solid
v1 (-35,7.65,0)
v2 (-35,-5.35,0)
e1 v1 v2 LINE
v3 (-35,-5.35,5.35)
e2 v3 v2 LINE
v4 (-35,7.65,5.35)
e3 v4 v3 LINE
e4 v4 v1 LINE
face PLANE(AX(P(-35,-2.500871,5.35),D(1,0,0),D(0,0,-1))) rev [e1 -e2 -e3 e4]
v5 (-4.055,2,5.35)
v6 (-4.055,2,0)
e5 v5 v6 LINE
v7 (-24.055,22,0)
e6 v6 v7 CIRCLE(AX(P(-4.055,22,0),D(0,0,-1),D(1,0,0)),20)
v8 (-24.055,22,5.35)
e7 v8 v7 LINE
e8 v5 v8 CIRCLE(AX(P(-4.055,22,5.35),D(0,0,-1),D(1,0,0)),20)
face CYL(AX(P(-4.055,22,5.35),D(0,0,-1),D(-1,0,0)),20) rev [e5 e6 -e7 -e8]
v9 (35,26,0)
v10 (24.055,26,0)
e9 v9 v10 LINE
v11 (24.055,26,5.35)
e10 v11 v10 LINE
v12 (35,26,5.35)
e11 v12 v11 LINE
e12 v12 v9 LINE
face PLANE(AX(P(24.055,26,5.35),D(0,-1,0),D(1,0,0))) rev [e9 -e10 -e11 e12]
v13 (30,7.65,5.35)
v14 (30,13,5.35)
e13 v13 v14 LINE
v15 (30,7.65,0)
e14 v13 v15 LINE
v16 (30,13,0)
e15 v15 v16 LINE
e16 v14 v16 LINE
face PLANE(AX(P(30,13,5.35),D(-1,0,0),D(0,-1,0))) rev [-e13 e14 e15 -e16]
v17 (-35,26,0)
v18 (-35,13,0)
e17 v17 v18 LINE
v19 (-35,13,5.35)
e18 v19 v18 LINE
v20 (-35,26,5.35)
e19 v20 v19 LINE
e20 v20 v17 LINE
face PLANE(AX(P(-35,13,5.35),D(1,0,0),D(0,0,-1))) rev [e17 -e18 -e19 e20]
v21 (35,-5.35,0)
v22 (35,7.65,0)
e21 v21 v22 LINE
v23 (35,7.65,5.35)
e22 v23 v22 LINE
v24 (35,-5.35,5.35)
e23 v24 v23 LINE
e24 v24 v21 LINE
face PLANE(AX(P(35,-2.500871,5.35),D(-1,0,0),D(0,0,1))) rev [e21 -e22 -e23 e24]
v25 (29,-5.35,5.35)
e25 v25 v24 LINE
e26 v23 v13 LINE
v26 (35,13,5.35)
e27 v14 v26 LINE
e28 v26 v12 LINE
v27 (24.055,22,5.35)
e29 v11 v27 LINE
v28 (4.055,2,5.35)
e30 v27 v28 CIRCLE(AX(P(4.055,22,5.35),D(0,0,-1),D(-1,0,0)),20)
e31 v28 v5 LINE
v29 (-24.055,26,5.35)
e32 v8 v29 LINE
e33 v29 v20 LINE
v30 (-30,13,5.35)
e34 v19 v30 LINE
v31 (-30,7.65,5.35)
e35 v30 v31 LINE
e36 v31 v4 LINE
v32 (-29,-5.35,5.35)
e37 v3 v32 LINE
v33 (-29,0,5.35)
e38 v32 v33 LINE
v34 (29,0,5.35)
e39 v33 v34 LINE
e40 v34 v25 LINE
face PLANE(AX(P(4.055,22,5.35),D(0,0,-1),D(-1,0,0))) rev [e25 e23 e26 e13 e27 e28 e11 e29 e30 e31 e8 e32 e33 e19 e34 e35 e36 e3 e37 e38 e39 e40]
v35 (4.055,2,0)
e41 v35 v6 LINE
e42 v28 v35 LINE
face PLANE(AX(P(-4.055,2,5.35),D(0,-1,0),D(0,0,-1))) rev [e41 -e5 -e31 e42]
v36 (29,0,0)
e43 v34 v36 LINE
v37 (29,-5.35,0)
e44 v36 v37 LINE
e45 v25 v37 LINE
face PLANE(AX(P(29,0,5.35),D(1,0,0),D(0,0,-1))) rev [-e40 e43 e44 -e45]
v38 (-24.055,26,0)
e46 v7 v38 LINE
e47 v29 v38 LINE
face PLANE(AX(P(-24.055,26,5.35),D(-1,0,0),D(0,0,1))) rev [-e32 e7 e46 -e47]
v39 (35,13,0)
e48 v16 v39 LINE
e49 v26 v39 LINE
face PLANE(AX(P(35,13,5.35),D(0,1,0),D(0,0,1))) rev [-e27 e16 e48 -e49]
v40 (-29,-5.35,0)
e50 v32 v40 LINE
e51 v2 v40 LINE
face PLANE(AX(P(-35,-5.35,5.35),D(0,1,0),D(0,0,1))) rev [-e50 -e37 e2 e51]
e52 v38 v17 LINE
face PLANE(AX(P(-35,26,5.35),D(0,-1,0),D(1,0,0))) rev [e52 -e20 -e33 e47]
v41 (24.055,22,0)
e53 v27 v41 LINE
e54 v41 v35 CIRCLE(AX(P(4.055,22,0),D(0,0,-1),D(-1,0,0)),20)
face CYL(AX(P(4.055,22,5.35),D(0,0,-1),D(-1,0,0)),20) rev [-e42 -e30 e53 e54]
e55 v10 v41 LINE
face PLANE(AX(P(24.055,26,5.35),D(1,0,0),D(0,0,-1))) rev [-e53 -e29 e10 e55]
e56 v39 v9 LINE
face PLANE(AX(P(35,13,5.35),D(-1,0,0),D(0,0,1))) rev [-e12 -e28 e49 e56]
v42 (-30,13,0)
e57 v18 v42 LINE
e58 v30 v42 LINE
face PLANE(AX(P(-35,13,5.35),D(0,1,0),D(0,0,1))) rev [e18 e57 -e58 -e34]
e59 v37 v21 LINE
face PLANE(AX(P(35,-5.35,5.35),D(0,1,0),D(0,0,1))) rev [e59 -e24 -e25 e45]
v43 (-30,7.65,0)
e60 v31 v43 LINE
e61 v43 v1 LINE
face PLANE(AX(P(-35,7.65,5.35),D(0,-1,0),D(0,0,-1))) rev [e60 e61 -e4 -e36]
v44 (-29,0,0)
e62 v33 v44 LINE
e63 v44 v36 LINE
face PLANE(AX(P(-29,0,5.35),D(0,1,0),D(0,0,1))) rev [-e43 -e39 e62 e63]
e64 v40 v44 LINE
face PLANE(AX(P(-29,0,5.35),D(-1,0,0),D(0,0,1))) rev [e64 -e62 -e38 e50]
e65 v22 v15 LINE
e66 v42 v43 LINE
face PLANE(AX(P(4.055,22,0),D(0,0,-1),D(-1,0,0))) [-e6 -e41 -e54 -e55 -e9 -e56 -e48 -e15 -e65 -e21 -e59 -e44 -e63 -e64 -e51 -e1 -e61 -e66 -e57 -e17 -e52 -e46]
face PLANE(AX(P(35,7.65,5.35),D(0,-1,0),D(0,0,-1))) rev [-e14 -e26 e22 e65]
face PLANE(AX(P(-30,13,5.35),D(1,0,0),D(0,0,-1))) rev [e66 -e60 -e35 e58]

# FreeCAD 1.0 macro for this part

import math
import FreeCAD as App
import Part
import Sketcher
Q = App.Units.Quantity

doc = App.newDocument("Part")
params = doc.addObject("Spreadsheet::Sheet", "Params")
for row, (alias, value) in enumerate([
    ("sketch1_radius", "20 mm"),
    ("sketch1_width", "58 mm"),
    ("sketch1_width2", "6 mm"),
    ("sketch1_width3", "5 mm"),
    ("sketch1_height", "13 mm"),
    ("pad1_length", "5.35 mm"),
], start=1):
    params.set(f"A{row}", alias)
    params.set(f"B{row}", "=" + value)
    params.setAlias(f"B{row}", alias)

body = doc.addObject("PartDesign::Body", "Body")

# Sketch on XY plane
sketch1 = body.newObject("Sketcher::SketchObject", "Sketch")
sketch1.AttachmentSupport = (doc.getObject("XY_Plane"), [""])
sketch1.MapMode = "FlatFace"
sketch1.addGeometry([
    Part.LineSegment(App.Vector(-29, 0, 0), App.Vector(29, 0, 0)),  # 0
    Part.LineSegment(App.Vector(29, 0, 0), App.Vector(29, -5.3, 0)),  # 1
    Part.LineSegment(App.Vector(29, -5.3, 0), App.Vector(35, -5.3, 0)),  # 2
    Part.LineSegment(App.Vector(35, -5.3, 0), App.Vector(35, 7.7, 0)),  # 3
    Part.LineSegment(App.Vector(35, 7.7, 0), App.Vector(30, 7.7, 0)),  # 4
    Part.LineSegment(App.Vector(30, 7.7, 0), App.Vector(30, 13, 0)),  # 5
    Part.LineSegment(App.Vector(30, 13, 0), App.Vector(35, 13, 0)),  # 6
    Part.LineSegment(App.Vector(35, 13, 0), App.Vector(35, 26, 0)),  # 7
    Part.LineSegment(App.Vector(35, 26, 0), App.Vector(24.1, 26, 0)),  # 8
    Part.LineSegment(App.Vector(24.1, 26, 0), App.Vector(24.1, 22, 0)),  # 9
    Part.ArcOfCircle(Part.Circle(App.Vector(4.1, 22, 0), App.Vector(0, 0, 1), 20), math.radians(-90), math.radians(0)),  # 10
    Part.LineSegment(App.Vector(4.1, 2, 0), App.Vector(-4.1, 2, 0)),  # 11
    Part.ArcOfCircle(Part.Circle(App.Vector(-4.1, 22, 0), App.Vector(0, 0, 1), 20), math.radians(180), math.radians(270)),  # 12
    Part.LineSegment(App.Vector(-24.1, 22, 0), App.Vector(-24.1, 26, 0)),  # 13
    Part.LineSegment(App.Vector(-24.1, 26, 0), App.Vector(-35, 26, 0)),  # 14
    Part.LineSegment(App.Vector(-35, 26, 0), App.Vector(-35, 13, 0)),  # 15
    Part.LineSegment(App.Vector(-35, 13, 0), App.Vector(-30, 13, 0)),  # 16
    Part.LineSegment(App.Vector(-30, 13, 0), App.Vector(-30, 7.7, 0)),  # 17
    Part.LineSegment(App.Vector(-30, 7.7, 0), App.Vector(-35, 7.7, 0)),  # 18
    Part.LineSegment(App.Vector(-35, 7.7, 0), App.Vector(-35, -5.3, 0)),  # 19
    Part.LineSegment(App.Vector(-35, -5.3, 0), App.Vector(-29, -5.3, 0)),  # 20
    Part.LineSegment(App.Vector(-29, -5.3, 0), App.Vector(-29, 0, 0)),  # 21
], False)
sketch1.addConstraint([
    Sketcher.Constraint("Coincident", 0, 2, 1, 1),
    Sketcher.Constraint("Coincident", 1, 2, 2, 1),
    Sketcher.Constraint("Coincident", 2, 2, 3, 1),
    Sketcher.Constraint("Coincident", 3, 2, 4, 1),
    Sketcher.Constraint("Coincident", 4, 2, 5, 1),
    Sketcher.Constraint("Coincident", 5, 2, 6, 1),
    Sketcher.Constraint("Coincident", 6, 2, 7, 1),
    Sketcher.Constraint("Coincident", 7, 2, 8, 1),
    Sketcher.Constraint("Coincident", 8, 2, 9, 1),
    Sketcher.Constraint("Tangent", 9, 2, 10, 2),
    Sketcher.Constraint("Tangent", 10, 1, 11, 1),
    Sketcher.Constraint("Tangent", 11, 2, 12, 2),
    Sketcher.Constraint("Tangent", 12, 1, 13, 1),
    Sketcher.Constraint("Coincident", 13, 2, 14, 1),
    Sketcher.Constraint("Coincident", 14, 2, 15, 1),
    Sketcher.Constraint("Coincident", 15, 2, 16, 1),
    Sketcher.Constraint("Coincident", 16, 2, 17, 1),
    Sketcher.Constraint("Coincident", 17, 2, 18, 1),
    Sketcher.Constraint("Coincident", 18, 2, 19, 1),
    Sketcher.Constraint("Coincident", 19, 2, 20, 1),
    Sketcher.Constraint("Coincident", 20, 2, 21, 1),
    Sketcher.Constraint("Coincident", 21, 2, 0, 1),
    Sketcher.Constraint("Horizontal", 0),
    Sketcher.Constraint("Vertical", 1),
    Sketcher.Constraint("Horizontal", 2),
    Sketcher.Constraint("Vertical", 3),
    Sketcher.Constraint("Horizontal", 4),
    Sketcher.Constraint("Vertical", 5),
    Sketcher.Constraint("Horizontal", 6),
    Sketcher.Constraint("Vertical", 7),
    Sketcher.Constraint("Horizontal", 8),
    Sketcher.Constraint("Vertical", 9),
    Sketcher.Constraint("Horizontal", 11),
    Sketcher.Constraint("Vertical", 13),
    Sketcher.Constraint("Horizontal", 14),
    Sketcher.Constraint("Vertical", 15),
    Sketcher.Constraint("Horizontal", 16),
    Sketcher.Constraint("Vertical", 17),
    Sketcher.Constraint("Horizontal", 18),
    Sketcher.Constraint("Vertical", 19),
    Sketcher.Constraint("Horizontal", 20),
    Sketcher.Constraint("Vertical", 21),
    Sketcher.Constraint("Equal", 10, 12),
    Sketcher.Constraint("Symmetric", 0, 2, 21, 2, -1, 1),
    Sketcher.Constraint("Symmetric", 8, 2, 13, 2, -2),
    Sketcher.Constraint("Symmetric", 6, 2, 15, 2, -2),
    Sketcher.Constraint("Symmetric", 4, 2, 17, 2, -2),
    Sketcher.Constraint("Symmetric", 2, 2, 19, 2, -2),
    Sketcher.Constraint("Vertical", 3, 2, 6, 2),
    Sketcher.Constraint("Equal", 1, 5),
    Sketcher.Constraint("Equal", 3, 7),
    Sketcher.Constraint("Radius", 10, Q("20 mm")),
    Sketcher.Constraint("DistanceX", 0, 1, 0, 2, Q("58 mm")),
    Sketcher.Constraint("DistanceX", 2, 1, 2, 2, Q("6 mm")),
    Sketcher.Constraint("DistanceX", 4, 2, 4, 1, Q("5 mm")),
    Sketcher.Constraint("DistanceY", 3, 1, 3, 2, Q("13 mm")),
    Sketcher.Constraint("DistanceY", 9, 2, 9, 1, Q("4 mm")),
    Sketcher.Constraint("DistanceX", 11, 2, 11, 1, Q("8.11 mm")),
    Sketcher.Constraint("DistanceY", 1, 2, 1, 1, Q("5.35 mm")),
])
sketch1.setExpression("Constraints[51]", "Params.sketch1_radius")
sketch1.setExpression("Constraints[52]", "Params.sketch1_width")
sketch1.setExpression("Constraints[53]", "Params.sketch1_width2")
sketch1.setExpression("Constraints[54]", "Params.sketch1_width3")
sketch1.setExpression("Constraints[55]", "Params.sketch1_height")
pad1 = body.newObject("PartDesign::Pad", "Pad")
pad1.Profile = sketch1
pad1.setExpression("Length", "Params.pad1_length")

doc.recompute()
